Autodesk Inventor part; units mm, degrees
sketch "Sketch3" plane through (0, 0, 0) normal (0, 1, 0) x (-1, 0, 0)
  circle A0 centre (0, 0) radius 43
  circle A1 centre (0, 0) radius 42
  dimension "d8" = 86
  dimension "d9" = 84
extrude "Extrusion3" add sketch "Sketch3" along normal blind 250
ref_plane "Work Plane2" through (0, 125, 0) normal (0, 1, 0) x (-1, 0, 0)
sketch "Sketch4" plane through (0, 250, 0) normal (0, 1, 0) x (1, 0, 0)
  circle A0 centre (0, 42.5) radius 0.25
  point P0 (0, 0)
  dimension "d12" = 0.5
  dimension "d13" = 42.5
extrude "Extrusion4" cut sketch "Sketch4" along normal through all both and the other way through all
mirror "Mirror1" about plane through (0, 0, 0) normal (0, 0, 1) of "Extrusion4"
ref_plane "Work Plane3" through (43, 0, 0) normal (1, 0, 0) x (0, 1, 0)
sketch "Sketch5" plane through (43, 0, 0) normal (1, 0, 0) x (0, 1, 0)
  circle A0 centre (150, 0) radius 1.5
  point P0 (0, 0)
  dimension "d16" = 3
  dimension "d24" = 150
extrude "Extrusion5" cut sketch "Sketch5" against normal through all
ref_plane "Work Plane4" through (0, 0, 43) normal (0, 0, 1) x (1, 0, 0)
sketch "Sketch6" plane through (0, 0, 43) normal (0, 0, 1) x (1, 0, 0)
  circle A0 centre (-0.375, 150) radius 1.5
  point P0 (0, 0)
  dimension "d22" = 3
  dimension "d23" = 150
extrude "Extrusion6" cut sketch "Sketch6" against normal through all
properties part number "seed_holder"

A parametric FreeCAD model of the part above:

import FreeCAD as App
import Part
import Sketcher
Q = App.Units.Quantity

doc = App.newDocument("Part")
body = doc.addObject("PartDesign::Body", "Body")

sketch1 = body.newObject("Sketcher::SketchObject", "Sketch")
sketch1.AttachmentSupport = (doc.getObject("XZ_Plane"), [""])
sketch1.MapMode = "FlatFace"
sketch1.addGeometry([
    Part.Circle(App.Vector(0, 0, 0), App.Vector(0, 0, 1), 43),
    Part.Circle(App.Vector(0, 0, 0), App.Vector(0, 0, 1), 42),
], False)
sketch1.addConstraint([
    Sketcher.Constraint("Coincident", 0, 3, -1, 1),
    Sketcher.Constraint("Coincident", 1, 3, -1, 1),
    Sketcher.Constraint("Diameter", 0, Q("86 mm")),
    Sketcher.Constraint("Diameter", 1, Q("84 mm")),
])
pad1 = body.newObject("PartDesign::Pad", "Pad")
pad1.Profile = sketch1
pad1.Length = 250
pad1.Reversed = True

sketch2 = body.newObject("Sketcher::SketchObject", "Sketch001")
sketch2.AttachmentSupport = (doc.getObject("XZ_Plane"), [""])
sketch2.MapMode = "FlatFace"
sketch2.AttachmentOffset = App.Placement(App.Vector(0, 0, -250), App.Rotation())
sketch2.addGeometry(Part.Circle(App.Vector(0, -42.5, 0), App.Vector(0, 0, 1), 0.25), False)
sketch2.addConstraint([
    Sketcher.Constraint("PointOnObject", 0, 3, -2),
    Sketcher.Constraint("Diameter", 0, Q("0.5 mm")),
    Sketcher.Constraint("DistanceY", 0, 3, -1, 1, Q("42.5 mm")),
])
pocket1 = body.newObject("PartDesign::Pocket", "Pocket")
pocket1.Profile = sketch2
pocket1.Type = "ThroughAll"
pocket1.Midplane = True
doc.recompute()

mirrored = body.newObject("PartDesign::Mirrored", "Mirrored")
mirrored.Originals = [pocket1]
mirrored.MirrorPlane = (doc.getObject("XY_Plane"), [""])
body.Tip = mirrored

sketch3 = body.newObject("Sketcher::SketchObject", "Sketch002")
sketch3.AttachmentSupport = (doc.getObject("YZ_Plane"), [""])
sketch3.MapMode = "FlatFace"
sketch3.AttachmentOffset = App.Placement(App.Vector(0, 0, 43), App.Rotation())
sketch3.addGeometry(Part.Circle(App.Vector(150, 0, 0), App.Vector(0, 0, 1), 1.5), False)
sketch3.addConstraint([
    Sketcher.Constraint("PointOnObject", 0, 3, -1),
    Sketcher.Constraint("Diameter", 0, Q("3 mm")),
    Sketcher.Constraint("DistanceX", -1, 1, 0, 3, Q("150 mm")),
])
pocket2 = body.newObject("PartDesign::Pocket", "Pocket001")
pocket2.Profile = sketch3
pocket2.Type = "ThroughAll"

sketch4 = body.newObject("Sketcher::SketchObject", "Sketch003")
sketch4.AttachmentSupport = (doc.getObject("XY_Plane"), [""])
sketch4.MapMode = "FlatFace"
sketch4.AttachmentOffset = App.Placement(App.Vector(0, 0, 43), App.Rotation())
sketch4.addGeometry(Part.Circle(App.Vector(-0.4, 150, 0), App.Vector(0, 0, 1), 1.5), False)
sketch4.addConstraint([
    Sketcher.Constraint("Diameter", 0, Q("3 mm")),
    Sketcher.Constraint("DistanceY", -1, 1, 0, 3, Q("150 mm")),
    Sketcher.Constraint("DistanceX", 0, 3, -1, 1, Q("0.375 mm")),
])
pocket3 = body.newObject("PartDesign::Pocket", "Pocket002")
pocket3.Profile = sketch4
pocket3.Type = "ThroughAll"

doc.recompute()
